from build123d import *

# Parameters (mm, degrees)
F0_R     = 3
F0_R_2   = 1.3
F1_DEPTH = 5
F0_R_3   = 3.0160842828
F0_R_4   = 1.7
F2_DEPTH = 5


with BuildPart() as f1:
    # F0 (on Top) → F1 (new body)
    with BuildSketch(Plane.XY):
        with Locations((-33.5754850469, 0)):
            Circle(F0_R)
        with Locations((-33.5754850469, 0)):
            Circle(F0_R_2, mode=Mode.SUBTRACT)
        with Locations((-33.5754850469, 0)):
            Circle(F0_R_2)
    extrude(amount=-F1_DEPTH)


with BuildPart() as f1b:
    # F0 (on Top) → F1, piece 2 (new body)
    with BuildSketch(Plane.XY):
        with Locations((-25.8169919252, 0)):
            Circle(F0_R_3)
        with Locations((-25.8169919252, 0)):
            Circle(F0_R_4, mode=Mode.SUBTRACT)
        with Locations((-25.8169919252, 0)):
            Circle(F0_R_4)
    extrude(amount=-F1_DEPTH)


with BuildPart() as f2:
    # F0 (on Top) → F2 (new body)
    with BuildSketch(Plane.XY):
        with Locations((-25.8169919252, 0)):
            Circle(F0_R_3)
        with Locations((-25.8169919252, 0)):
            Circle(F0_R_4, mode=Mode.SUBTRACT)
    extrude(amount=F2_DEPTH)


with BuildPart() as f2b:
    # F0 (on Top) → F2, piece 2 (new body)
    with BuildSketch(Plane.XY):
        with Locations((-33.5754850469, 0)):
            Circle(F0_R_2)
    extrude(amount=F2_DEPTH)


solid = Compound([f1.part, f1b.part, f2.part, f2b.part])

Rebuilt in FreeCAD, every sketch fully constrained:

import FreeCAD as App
import Part
import Sketcher
Q = App.Units.Quantity

doc = App.newDocument("Part")
params = doc.addObject("Spreadsheet::Sheet", "Params")
for row, (alias, value) in enumerate([
    ("sketch1_diameter", "6 mm"),
    ("pad1_length", "5 mm"),
    ("pad2_length", "5 mm"),
    ("sketch3_diameter", "3.4 mm"),
    ("pad3_length", "5 mm"),
    ("sketch4_diameter", "2.6 mm"),
    ("pad4_length", "5 mm"),
], start=1):
    params.set(f"A{row}", alias)
    params.set(f"B{row}", "=" + value)
    params.setAlias(f"B{row}", alias)

body = doc.addObject("PartDesign::Body", "Body")

# Sketch on XY plane
sketch1 = body.newObject("Sketcher::SketchObject", "Sketch")
sketch1.AttachmentSupport = (doc.getObject("XY_Plane"), [""])
sketch1.MapMode = "FlatFace"
sketch1.addGeometry(Part.Circle(App.Vector(-33.6, 0, 0), App.Vector(0, 0, 1), 3), False)
sketch1.addConstraint([
    Sketcher.Constraint("PointOnObject", 0, 3, -1),
    Sketcher.Constraint("Diameter", 0, Q("6 mm")),
    Sketcher.Constraint("DistanceX", 0, 3, -1, 1, Q("33.575485 mm")),
])
sketch1.setExpression("Constraints[1]", "Params.sketch1_diameter")
pad1 = body.newObject("PartDesign::Pad", "Pad")
pad1.Profile = sketch1
pad1.setExpression("Length", "Params.pad1_length")
pad1.Reversed = True
body2 = doc.addObject("PartDesign::Body", "Body001")

# Sketch on XY plane
sketch2 = body2.newObject("Sketcher::SketchObject", "Sketch001")
sketch2.AttachmentSupport = (doc.getObject("XY_Plane001"), [""])
sketch2.MapMode = "FlatFace"
sketch2.addGeometry(Part.Circle(App.Vector(-25.8, 0, 0), App.Vector(0, 0, 1), 3), False)
sketch2.addConstraint([
    Sketcher.Constraint("PointOnObject", 0, 3, -1),
    Sketcher.Constraint("Diameter", 0, Q("6.032169 mm")),
    Sketcher.Constraint("DistanceX", 0, 3, -1, 1, Q("25.816992 mm")),
])
pad2 = body2.newObject("PartDesign::Pad", "Pad001")
pad2.Profile = sketch2
pad2.setExpression("Length", "Params.pad2_length")
pad2.Reversed = True
body3 = doc.addObject("PartDesign::Body", "Body002")

# Sketch on XY plane
sketch3 = body3.newObject("Sketcher::SketchObject", "Sketch002")
sketch3.AttachmentSupport = (doc.getObject("XY_Plane002"), [""])
sketch3.MapMode = "FlatFace"
sketch3.addGeometry([
    Part.Circle(App.Vector(-25.8, 0, 0), App.Vector(0, 0, 1), 3),
    Part.Circle(App.Vector(-25.8, 0, 0), App.Vector(0, 0, 1), 1.7),
], False)
sketch3.addConstraint([
    Sketcher.Constraint("Coincident", 1, 3, 0, 3),
    Sketcher.Constraint("PointOnObject", 0, 3, -1),
    Sketcher.Constraint("Diameter", 1, Q("3.4 mm")),
    Sketcher.Constraint("Diameter", 0, Q("6.032169 mm")),
    Sketcher.Constraint("DistanceX", 0, 3, -1, 1, Q("25.816992 mm")),
])
sketch3.setExpression("Constraints[2]", "Params.sketch3_diameter")
pad3 = body3.newObject("PartDesign::Pad", "Pad002")
pad3.Profile = sketch3
pad3.setExpression("Length", "Params.pad3_length")
body4 = doc.addObject("PartDesign::Body", "Body003")

# Sketch on XY plane
sketch4 = body4.newObject("Sketcher::SketchObject", "Sketch003")
sketch4.AttachmentSupport = (doc.getObject("XY_Plane003"), [""])
sketch4.MapMode = "FlatFace"
sketch4.addGeometry(Part.Circle(App.Vector(-33.6, 0, 0), App.Vector(0, 0, 1), 1.3), False)
sketch4.addConstraint([
    Sketcher.Constraint("PointOnObject", 0, 3, -1),
    Sketcher.Constraint("Diameter", 0, Q("2.6 mm")),
    Sketcher.Constraint("DistanceX", 0, 3, -1, 1, Q("33.575485 mm")),
])
sketch4.setExpression("Constraints[1]", "Params.sketch4_diameter")
pad4 = body4.newObject("PartDesign::Pad", "Pad003")
pad4.Profile = sketch4
pad4.setExpression("Length", "Params.pad4_length")

doc.recompute()
